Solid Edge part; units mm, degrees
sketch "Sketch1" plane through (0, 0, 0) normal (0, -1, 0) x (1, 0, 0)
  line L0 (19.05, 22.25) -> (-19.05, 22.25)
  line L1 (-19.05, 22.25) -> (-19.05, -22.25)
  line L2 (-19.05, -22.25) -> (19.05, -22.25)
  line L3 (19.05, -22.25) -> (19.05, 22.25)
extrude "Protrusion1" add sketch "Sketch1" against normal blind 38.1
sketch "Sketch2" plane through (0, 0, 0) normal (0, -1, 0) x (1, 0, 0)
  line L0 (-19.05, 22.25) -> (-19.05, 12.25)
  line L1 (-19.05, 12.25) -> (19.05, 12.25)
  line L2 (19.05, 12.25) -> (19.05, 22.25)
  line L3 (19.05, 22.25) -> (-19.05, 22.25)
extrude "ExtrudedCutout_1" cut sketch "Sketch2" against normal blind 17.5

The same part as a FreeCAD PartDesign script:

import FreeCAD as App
import Part
import Sketcher
Q = App.Units.Quantity


def add_polygon(sketch, points):
    """Adds a closed chain of lines whose ends are joined by coincident constraints."""
    first, n = sketch.GeometryCount, len(points)
    for a, b in zip(points, points[1:] + points[:1]):
        sketch.addGeometry(Part.LineSegment(App.Vector(*a, 0), App.Vector(*b, 0)), False)
    for i in range(n):
        sketch.addConstraint(Sketcher.Constraint("Coincident", first + i, 2, first + (i + 1) % n, 1))

doc = App.newDocument("Part")
body = doc.addObject("PartDesign::Body", "Body")

# Sketch on XZ plane
sketch1 = doc.addObject("Sketcher::SketchObject", "Sketch")
body.addObject(sketch1)
sketch1.AttachmentSupport = (doc.XZ_Plane, [""])
sketch1.MapMode = "FlatFace"
add_polygon(sketch1, [(19, -22), (19, 22), (-19, 22), (-19, -22)])  # lines 0-3
sketch1.addConstraint(Sketcher.Constraint("Vertical", 0))
sketch1.addConstraint(Sketcher.Constraint("Horizontal", 1))
sketch1.addConstraint(Sketcher.Constraint("Vertical", 2))
sketch1.addConstraint(Sketcher.Constraint("Horizontal", 3))
sketch1.addConstraint(Sketcher.Constraint("Symmetric", 0, 2, 2, 2, -1, 1))
sketch1.addConstraint(Sketcher.Constraint("DistanceX", 1, 2, 1, 1, Q("38.1 mm")))
sketch1.addConstraint(Sketcher.Constraint("DistanceY", 0, 1, 0, 2, Q("44.5 mm")))
pad1 = doc.addObject("PartDesign::Pad", "Pad")
body.addObject(pad1)
pad1.Profile = sketch1
pad1.Length = 38.1
pad1.Reversed = True

# Sketch on XZ plane
sketch2 = doc.addObject("Sketcher::SketchObject", "Sketch001")
body.addObject(sketch2)
sketch2.AttachmentSupport = (doc.XZ_Plane, [""])
sketch2.MapMode = "FlatFace"
add_polygon(sketch2, [(19, 22), (-19, 22), (-19, 12), (19, 12)])  # lines 0-3
sketch2.addConstraint(Sketcher.Constraint("Horizontal", 0))
sketch2.addConstraint(Sketcher.Constraint("Vertical", 1))
sketch2.addConstraint(Sketcher.Constraint("Horizontal", 2))
sketch2.addConstraint(Sketcher.Constraint("Vertical", 3))
sketch2.addConstraint(Sketcher.Constraint("DistanceY", 1, 2, 1, 1, Q("10 mm")))
sketch2.addConstraint(Sketcher.Constraint("DistanceX", 0, 2, 0, 1, Q("38.1 mm")))
sketch2.addConstraint(Sketcher.Constraint("DistanceX", 0, 2, -1, 1, Q("19.05 mm")))
sketch2.addConstraint(Sketcher.Constraint("DistanceY", -1, 1, 0, 2, Q("22.25 mm")))
pocket1 = doc.addObject("PartDesign::Pocket", "Pocket")
body.addObject(pocket1)
pocket1.Profile = sketch2
pocket1.Length = 17.5

doc.recompute()
